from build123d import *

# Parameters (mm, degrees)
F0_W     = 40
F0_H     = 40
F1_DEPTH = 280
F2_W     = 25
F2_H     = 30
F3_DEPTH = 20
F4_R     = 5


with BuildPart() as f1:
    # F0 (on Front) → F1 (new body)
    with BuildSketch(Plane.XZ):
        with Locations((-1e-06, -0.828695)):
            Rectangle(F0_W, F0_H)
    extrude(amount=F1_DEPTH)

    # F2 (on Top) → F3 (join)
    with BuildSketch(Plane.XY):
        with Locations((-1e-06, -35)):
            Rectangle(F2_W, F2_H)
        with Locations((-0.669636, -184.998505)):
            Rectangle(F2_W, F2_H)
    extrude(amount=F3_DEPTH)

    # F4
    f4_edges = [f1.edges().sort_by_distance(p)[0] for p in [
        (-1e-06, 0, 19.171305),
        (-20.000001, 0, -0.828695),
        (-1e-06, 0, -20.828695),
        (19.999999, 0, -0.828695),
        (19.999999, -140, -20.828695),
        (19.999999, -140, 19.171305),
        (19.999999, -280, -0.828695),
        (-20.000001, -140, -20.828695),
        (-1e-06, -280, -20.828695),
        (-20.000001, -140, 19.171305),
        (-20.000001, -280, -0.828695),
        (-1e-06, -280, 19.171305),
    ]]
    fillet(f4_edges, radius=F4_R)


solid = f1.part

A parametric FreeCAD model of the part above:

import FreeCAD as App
import Part
import Sketcher
from FreeCAD import Vector


def edges_at(feature, points):
    """Names of the edges that pass closest to the given points."""
    edges = feature.Shape.Edges
    near = lambda p: min(range(len(edges)), key=lambda i: edges[i].distToShape(Part.Vertex(*p))[0])
    return sorted({f"Edge{near(p) + 1}" for p in points})


def add_polygon(sketch, points):
    """Adds a closed chain of lines whose ends are joined by coincident constraints."""
    first, n = sketch.GeometryCount, len(points)
    for a, b in zip(points, points[1:] + points[:1]):
        sketch.addGeometry(Part.LineSegment(App.Vector(*a, 0), App.Vector(*b, 0)), False)
    for i in range(n):
        sketch.addConstraint(Sketcher.Constraint("Coincident", first + i, 2, first + (i + 1) % n, 1))

doc = App.newDocument("Part")
params = doc.addObject("Spreadsheet::Sheet", "Params")
for row, (alias, value) in enumerate([
    ("sketch1_width", "40 mm"),
    ("pad1_length", "280 mm"),
    ("sketch2_width", "25 mm"),
    ("sketch2_height", "30 mm"),
    ("pad2_length", "20 mm"),
    ("fillet_radius", "5 mm"),
], start=1):
    params.set(f"A{row}", alias)
    params.set(f"B{row}", "=" + value)
    params.setAlias(f"B{row}", alias)

body = doc.addObject("PartDesign::Body", "Body")

# Sketch on XZ plane
sketch1 = doc.addObject("Sketcher::SketchObject", "Sketch")
body.addObject(sketch1)
sketch1.AttachmentSupport = (doc.XZ_Plane, [""])
sketch1.MapMode = "FlatFace"
add_polygon(sketch1, [(-20, 19), (-20, -21), (20, -21), (20, 19)])  # lines 0-3
sketch1.addConstraint([
    Sketcher.Constraint("Vertical", 0),
    Sketcher.Constraint("Horizontal", 1),
    Sketcher.Constraint("Vertical", 2),
    Sketcher.Constraint("Horizontal", 3),
    Sketcher.Constraint("Equal", 3, 0),
    Sketcher.Constraint("DistanceX", 1, 1, 1, 2, 40.0),
    Sketcher.Constraint("DistanceX", 0, 2, -1, 1, 20.000001),
    Sketcher.Constraint("DistanceY", 0, 2, -1, 1, 20.828695),
])
sketch1.setExpression("Constraints[9]", "Params.sketch1_width")
pad1 = doc.addObject("PartDesign::Pad", "Pad")
body.addObject(pad1)
pad1.Profile = sketch1
pad1.setExpression("Length", "Params.pad1_length")

# Sketch on XY plane
sketch2 = doc.addObject("Sketcher::SketchObject", "Sketch001")
body.addObject(sketch2)
sketch2.AttachmentSupport = (doc.XY_Plane, [""])
sketch2.MapMode = "FlatFace"
add_polygon(sketch2, [(-13, -20), (-13, -50), (12, -50), (12, -20)])  # lines 0-3
add_polygon(sketch2, [(-13, -170), (-13, -200), (12, -200), (12, -170)])  # lines 4-7
sketch2.addConstraint([
    Sketcher.Constraint("Vertical", 0),
    Sketcher.Constraint("Horizontal", 1),
    Sketcher.Constraint("Vertical", 2),
    Sketcher.Constraint("Horizontal", 3),
    Sketcher.Constraint("Vertical", 4),
    Sketcher.Constraint("Horizontal", 5),
    Sketcher.Constraint("Vertical", 6),
    Sketcher.Constraint("Horizontal", 7),
    Sketcher.Constraint("Equal", 3, 5),
    Sketcher.Constraint("Equal", 2, 4),
    Sketcher.Constraint("DistanceX", 1, 1, 1, 2, 25.0),
    Sketcher.Constraint("DistanceY", 0, 2, 0, 1, 30.0),
    Sketcher.Constraint("DistanceY", 0, 2, -1, 1, 50.0),
    Sketcher.Constraint("DistanceX", 0, 2, -1, 1, 12.500001),
    Sketcher.Constraint("DistanceX", 4, 2, -1, 1, 13.169636),
    Sketcher.Constraint("DistanceY", 4, 2, -1, 1, 199.998505),
])
sketch2.setExpression("Constraints[18]", "Params.sketch2_width")
sketch2.setExpression("Constraints[19]", "Params.sketch2_height")
pad2 = doc.addObject("PartDesign::Pad", "Pad001")
body.addObject(pad2)
pad2.Profile = sketch2
pad2.setExpression("Length", "Params.pad2_length")
doc.recompute()

fillet = doc.addObject("PartDesign::Fillet", "Fillet")
body.addObject(fillet)
fillet.Base = (pad2, edges_at(pad2, [
    (0, 0, 19.171),
    (-20, 0, -0.829),
    (0, 0, -20.829),
    (20, 0, -0.829),
    (20, -140, -20.829),
    (20, -140, 19.171),
    (20, -280, -0.829),
    (-20, -140, -20.829),
    (0, -280, -20.829),
    (-20, -140, 19.171),
    (-20, -280, -0.829),
    (0, -280, 19.171),
]))
fillet.setExpression("Radius", "Params.fillet_radius")

doc.recompute()
